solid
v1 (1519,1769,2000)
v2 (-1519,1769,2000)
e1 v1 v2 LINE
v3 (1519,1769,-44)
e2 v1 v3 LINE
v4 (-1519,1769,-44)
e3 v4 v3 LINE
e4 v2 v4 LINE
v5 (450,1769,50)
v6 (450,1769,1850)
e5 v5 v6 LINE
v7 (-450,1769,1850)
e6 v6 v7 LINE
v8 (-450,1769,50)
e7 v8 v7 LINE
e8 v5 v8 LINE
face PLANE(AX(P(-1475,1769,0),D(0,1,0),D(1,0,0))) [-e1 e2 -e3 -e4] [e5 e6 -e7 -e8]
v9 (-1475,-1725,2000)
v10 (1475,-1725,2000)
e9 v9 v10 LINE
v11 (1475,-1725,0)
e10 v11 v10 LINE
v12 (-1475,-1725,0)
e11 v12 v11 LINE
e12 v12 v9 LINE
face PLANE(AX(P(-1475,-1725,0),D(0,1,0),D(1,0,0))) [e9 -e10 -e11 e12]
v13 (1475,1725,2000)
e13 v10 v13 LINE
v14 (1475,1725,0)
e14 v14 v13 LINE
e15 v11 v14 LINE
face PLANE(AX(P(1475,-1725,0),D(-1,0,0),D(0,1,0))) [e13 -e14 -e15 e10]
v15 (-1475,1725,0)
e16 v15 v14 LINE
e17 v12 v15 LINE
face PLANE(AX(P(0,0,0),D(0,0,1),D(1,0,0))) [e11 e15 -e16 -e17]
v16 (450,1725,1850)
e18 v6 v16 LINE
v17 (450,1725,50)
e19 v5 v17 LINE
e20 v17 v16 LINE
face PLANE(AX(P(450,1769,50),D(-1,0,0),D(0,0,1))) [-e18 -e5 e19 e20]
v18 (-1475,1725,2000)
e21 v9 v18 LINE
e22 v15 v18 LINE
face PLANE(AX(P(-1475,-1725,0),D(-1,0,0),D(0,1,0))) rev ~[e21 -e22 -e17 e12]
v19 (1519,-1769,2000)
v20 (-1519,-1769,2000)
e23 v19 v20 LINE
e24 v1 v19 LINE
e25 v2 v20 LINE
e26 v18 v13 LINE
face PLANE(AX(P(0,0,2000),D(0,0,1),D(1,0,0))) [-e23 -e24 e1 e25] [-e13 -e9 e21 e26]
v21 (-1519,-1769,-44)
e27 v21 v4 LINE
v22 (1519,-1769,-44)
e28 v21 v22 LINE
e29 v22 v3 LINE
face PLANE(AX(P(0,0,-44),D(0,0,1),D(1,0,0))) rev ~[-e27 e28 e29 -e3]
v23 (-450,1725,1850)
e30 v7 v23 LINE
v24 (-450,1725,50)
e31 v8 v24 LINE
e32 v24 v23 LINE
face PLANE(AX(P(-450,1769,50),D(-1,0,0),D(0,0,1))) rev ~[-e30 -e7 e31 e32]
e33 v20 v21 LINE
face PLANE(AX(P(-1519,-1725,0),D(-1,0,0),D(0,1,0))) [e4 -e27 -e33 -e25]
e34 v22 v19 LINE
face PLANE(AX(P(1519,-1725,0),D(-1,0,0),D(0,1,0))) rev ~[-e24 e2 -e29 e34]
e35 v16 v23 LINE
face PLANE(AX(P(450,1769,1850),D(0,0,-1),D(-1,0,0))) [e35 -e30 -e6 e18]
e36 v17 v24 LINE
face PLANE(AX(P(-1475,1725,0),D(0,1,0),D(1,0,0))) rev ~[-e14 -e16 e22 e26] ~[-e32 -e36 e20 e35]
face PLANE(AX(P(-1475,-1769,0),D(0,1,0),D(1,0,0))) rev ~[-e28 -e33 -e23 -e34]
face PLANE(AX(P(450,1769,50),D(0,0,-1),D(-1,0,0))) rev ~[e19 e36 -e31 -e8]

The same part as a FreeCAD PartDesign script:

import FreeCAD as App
import Part
import Sketcher

V = App.Vector
Q = App.Units.Quantity


def faces_at(feature, points):
    """Names of the faces that lie closest to the given points."""
    faces = feature.Shape.Faces
    near = lambda p: min(range(len(faces)), key=lambda i: faces[i].distToShape(Part.Vertex(*p))[0])
    return sorted({f"Face{near(p) + 1}" for p in points})

doc = App.newDocument("Part")
body = doc.addObject("PartDesign::Body", "Body")

sketch1 = body.newObject("Sketcher::SketchObject", "Sketch")
sketch1.AttachmentSupport = (doc.getObject("XY_Plane"), [""])
sketch1.MapMode = "FlatFace"
sketch1.addGeometry(Part.LineSegment(V(-1475, 1725, 0), V(-1475, -1725, 0)), False)
sketch1.addGeometry(Part.LineSegment(V(-1475, -1725, 0), V(1475, -1725, 0)), False)
sketch1.addGeometry(Part.LineSegment(V(1475, -1725, 0), V(1475, 1725, 0)), False)
sketch1.addGeometry(Part.LineSegment(V(1475, 1725, 0), V(-1475, 1725, 0)), False)
sketch1.addConstraint(Sketcher.Constraint("Coincident", 0, 2, 1, 1))
sketch1.addConstraint(Sketcher.Constraint("Coincident", 1, 2, 2, 1))
sketch1.addConstraint(Sketcher.Constraint("Coincident", 2, 2, 3, 1))
sketch1.addConstraint(Sketcher.Constraint("Coincident", 3, 2, 0, 1))
sketch1.addConstraint(Sketcher.Constraint("Vertical", 0))
sketch1.addConstraint(Sketcher.Constraint("Horizontal", 1))
sketch1.addConstraint(Sketcher.Constraint("Vertical", 2))
sketch1.addConstraint(Sketcher.Constraint("Horizontal", 3))
sketch1.addConstraint(Sketcher.Constraint("Symmetric", 0, 2, 2, 2, -1, 1))
sketch1.addConstraint(Sketcher.Constraint("DistanceX", 1, 1, 1, 2, Q("2950 mm")))
sketch1.addConstraint(Sketcher.Constraint("DistanceY", 0, 2, 0, 1, Q("3450 mm")))
pad1 = body.newObject("PartDesign::Pad", "Pad")
pad1.Profile = sketch1
pad1.Length = 2000
doc.recompute()

thickness = body.newObject("PartDesign::Thickness", "Thickness")
thickness.Base = (pad1, faces_at(pad1, [(0, 0, 2000)]))
thickness.Value = 44
thickness.Reversed = False
thickness.Join = "Intersection"

sketch2 = body.newObject("Sketcher::SketchObject", "Sketch001")
sketch2.AttachmentSupport = (doc.getObject("XZ_Plane"), [""])
sketch2.MapMode = "FlatFace"
sketch2.AttachmentOffset = App.Placement(V(0, 0, -1769), App.Rotation())
sketch2.addGeometry(Part.LineSegment(V(450, 1850, 0), V(450, 50, 0)), False)
sketch2.addGeometry(Part.LineSegment(V(450, 50, 0), V(-450, 50, 0)), False)
sketch2.addGeometry(Part.LineSegment(V(-450, 50, 0), V(-450, 1850, 0)), False)
sketch2.addGeometry(Part.LineSegment(V(-450, 1850, 0), V(450, 1850, 0)), False)
sketch2.addConstraint(Sketcher.Constraint("Coincident", 0, 2, 1, 1))
sketch2.addConstraint(Sketcher.Constraint("Coincident", 1, 2, 2, 1))
sketch2.addConstraint(Sketcher.Constraint("Coincident", 2, 2, 3, 1))
sketch2.addConstraint(Sketcher.Constraint("Coincident", 3, 2, 0, 1))
sketch2.addConstraint(Sketcher.Constraint("Vertical", 0))
sketch2.addConstraint(Sketcher.Constraint("Horizontal", 1))
sketch2.addConstraint(Sketcher.Constraint("Vertical", 2))
sketch2.addConstraint(Sketcher.Constraint("Horizontal", 3))
sketch2.addConstraint(Sketcher.Constraint("DistanceX", 1, 2, 1, 1, Q("900 mm")))
sketch2.addConstraint(Sketcher.Constraint("DistanceY", 0, 2, 0, 1, Q("1800 mm")))
sketch2.addConstraint(Sketcher.Constraint("DistanceX", -1, 1, 0, 2, Q("450 mm")))
sketch2.addConstraint(Sketcher.Constraint("DistanceY", -1, 1, 0, 2, Q("50 mm")))
pocket1 = body.newObject("PartDesign::Pocket", "Pocket")
pocket1.Profile = sketch2
pocket1.Length = 44
pocket1.Reversed = True

doc.recompute()
